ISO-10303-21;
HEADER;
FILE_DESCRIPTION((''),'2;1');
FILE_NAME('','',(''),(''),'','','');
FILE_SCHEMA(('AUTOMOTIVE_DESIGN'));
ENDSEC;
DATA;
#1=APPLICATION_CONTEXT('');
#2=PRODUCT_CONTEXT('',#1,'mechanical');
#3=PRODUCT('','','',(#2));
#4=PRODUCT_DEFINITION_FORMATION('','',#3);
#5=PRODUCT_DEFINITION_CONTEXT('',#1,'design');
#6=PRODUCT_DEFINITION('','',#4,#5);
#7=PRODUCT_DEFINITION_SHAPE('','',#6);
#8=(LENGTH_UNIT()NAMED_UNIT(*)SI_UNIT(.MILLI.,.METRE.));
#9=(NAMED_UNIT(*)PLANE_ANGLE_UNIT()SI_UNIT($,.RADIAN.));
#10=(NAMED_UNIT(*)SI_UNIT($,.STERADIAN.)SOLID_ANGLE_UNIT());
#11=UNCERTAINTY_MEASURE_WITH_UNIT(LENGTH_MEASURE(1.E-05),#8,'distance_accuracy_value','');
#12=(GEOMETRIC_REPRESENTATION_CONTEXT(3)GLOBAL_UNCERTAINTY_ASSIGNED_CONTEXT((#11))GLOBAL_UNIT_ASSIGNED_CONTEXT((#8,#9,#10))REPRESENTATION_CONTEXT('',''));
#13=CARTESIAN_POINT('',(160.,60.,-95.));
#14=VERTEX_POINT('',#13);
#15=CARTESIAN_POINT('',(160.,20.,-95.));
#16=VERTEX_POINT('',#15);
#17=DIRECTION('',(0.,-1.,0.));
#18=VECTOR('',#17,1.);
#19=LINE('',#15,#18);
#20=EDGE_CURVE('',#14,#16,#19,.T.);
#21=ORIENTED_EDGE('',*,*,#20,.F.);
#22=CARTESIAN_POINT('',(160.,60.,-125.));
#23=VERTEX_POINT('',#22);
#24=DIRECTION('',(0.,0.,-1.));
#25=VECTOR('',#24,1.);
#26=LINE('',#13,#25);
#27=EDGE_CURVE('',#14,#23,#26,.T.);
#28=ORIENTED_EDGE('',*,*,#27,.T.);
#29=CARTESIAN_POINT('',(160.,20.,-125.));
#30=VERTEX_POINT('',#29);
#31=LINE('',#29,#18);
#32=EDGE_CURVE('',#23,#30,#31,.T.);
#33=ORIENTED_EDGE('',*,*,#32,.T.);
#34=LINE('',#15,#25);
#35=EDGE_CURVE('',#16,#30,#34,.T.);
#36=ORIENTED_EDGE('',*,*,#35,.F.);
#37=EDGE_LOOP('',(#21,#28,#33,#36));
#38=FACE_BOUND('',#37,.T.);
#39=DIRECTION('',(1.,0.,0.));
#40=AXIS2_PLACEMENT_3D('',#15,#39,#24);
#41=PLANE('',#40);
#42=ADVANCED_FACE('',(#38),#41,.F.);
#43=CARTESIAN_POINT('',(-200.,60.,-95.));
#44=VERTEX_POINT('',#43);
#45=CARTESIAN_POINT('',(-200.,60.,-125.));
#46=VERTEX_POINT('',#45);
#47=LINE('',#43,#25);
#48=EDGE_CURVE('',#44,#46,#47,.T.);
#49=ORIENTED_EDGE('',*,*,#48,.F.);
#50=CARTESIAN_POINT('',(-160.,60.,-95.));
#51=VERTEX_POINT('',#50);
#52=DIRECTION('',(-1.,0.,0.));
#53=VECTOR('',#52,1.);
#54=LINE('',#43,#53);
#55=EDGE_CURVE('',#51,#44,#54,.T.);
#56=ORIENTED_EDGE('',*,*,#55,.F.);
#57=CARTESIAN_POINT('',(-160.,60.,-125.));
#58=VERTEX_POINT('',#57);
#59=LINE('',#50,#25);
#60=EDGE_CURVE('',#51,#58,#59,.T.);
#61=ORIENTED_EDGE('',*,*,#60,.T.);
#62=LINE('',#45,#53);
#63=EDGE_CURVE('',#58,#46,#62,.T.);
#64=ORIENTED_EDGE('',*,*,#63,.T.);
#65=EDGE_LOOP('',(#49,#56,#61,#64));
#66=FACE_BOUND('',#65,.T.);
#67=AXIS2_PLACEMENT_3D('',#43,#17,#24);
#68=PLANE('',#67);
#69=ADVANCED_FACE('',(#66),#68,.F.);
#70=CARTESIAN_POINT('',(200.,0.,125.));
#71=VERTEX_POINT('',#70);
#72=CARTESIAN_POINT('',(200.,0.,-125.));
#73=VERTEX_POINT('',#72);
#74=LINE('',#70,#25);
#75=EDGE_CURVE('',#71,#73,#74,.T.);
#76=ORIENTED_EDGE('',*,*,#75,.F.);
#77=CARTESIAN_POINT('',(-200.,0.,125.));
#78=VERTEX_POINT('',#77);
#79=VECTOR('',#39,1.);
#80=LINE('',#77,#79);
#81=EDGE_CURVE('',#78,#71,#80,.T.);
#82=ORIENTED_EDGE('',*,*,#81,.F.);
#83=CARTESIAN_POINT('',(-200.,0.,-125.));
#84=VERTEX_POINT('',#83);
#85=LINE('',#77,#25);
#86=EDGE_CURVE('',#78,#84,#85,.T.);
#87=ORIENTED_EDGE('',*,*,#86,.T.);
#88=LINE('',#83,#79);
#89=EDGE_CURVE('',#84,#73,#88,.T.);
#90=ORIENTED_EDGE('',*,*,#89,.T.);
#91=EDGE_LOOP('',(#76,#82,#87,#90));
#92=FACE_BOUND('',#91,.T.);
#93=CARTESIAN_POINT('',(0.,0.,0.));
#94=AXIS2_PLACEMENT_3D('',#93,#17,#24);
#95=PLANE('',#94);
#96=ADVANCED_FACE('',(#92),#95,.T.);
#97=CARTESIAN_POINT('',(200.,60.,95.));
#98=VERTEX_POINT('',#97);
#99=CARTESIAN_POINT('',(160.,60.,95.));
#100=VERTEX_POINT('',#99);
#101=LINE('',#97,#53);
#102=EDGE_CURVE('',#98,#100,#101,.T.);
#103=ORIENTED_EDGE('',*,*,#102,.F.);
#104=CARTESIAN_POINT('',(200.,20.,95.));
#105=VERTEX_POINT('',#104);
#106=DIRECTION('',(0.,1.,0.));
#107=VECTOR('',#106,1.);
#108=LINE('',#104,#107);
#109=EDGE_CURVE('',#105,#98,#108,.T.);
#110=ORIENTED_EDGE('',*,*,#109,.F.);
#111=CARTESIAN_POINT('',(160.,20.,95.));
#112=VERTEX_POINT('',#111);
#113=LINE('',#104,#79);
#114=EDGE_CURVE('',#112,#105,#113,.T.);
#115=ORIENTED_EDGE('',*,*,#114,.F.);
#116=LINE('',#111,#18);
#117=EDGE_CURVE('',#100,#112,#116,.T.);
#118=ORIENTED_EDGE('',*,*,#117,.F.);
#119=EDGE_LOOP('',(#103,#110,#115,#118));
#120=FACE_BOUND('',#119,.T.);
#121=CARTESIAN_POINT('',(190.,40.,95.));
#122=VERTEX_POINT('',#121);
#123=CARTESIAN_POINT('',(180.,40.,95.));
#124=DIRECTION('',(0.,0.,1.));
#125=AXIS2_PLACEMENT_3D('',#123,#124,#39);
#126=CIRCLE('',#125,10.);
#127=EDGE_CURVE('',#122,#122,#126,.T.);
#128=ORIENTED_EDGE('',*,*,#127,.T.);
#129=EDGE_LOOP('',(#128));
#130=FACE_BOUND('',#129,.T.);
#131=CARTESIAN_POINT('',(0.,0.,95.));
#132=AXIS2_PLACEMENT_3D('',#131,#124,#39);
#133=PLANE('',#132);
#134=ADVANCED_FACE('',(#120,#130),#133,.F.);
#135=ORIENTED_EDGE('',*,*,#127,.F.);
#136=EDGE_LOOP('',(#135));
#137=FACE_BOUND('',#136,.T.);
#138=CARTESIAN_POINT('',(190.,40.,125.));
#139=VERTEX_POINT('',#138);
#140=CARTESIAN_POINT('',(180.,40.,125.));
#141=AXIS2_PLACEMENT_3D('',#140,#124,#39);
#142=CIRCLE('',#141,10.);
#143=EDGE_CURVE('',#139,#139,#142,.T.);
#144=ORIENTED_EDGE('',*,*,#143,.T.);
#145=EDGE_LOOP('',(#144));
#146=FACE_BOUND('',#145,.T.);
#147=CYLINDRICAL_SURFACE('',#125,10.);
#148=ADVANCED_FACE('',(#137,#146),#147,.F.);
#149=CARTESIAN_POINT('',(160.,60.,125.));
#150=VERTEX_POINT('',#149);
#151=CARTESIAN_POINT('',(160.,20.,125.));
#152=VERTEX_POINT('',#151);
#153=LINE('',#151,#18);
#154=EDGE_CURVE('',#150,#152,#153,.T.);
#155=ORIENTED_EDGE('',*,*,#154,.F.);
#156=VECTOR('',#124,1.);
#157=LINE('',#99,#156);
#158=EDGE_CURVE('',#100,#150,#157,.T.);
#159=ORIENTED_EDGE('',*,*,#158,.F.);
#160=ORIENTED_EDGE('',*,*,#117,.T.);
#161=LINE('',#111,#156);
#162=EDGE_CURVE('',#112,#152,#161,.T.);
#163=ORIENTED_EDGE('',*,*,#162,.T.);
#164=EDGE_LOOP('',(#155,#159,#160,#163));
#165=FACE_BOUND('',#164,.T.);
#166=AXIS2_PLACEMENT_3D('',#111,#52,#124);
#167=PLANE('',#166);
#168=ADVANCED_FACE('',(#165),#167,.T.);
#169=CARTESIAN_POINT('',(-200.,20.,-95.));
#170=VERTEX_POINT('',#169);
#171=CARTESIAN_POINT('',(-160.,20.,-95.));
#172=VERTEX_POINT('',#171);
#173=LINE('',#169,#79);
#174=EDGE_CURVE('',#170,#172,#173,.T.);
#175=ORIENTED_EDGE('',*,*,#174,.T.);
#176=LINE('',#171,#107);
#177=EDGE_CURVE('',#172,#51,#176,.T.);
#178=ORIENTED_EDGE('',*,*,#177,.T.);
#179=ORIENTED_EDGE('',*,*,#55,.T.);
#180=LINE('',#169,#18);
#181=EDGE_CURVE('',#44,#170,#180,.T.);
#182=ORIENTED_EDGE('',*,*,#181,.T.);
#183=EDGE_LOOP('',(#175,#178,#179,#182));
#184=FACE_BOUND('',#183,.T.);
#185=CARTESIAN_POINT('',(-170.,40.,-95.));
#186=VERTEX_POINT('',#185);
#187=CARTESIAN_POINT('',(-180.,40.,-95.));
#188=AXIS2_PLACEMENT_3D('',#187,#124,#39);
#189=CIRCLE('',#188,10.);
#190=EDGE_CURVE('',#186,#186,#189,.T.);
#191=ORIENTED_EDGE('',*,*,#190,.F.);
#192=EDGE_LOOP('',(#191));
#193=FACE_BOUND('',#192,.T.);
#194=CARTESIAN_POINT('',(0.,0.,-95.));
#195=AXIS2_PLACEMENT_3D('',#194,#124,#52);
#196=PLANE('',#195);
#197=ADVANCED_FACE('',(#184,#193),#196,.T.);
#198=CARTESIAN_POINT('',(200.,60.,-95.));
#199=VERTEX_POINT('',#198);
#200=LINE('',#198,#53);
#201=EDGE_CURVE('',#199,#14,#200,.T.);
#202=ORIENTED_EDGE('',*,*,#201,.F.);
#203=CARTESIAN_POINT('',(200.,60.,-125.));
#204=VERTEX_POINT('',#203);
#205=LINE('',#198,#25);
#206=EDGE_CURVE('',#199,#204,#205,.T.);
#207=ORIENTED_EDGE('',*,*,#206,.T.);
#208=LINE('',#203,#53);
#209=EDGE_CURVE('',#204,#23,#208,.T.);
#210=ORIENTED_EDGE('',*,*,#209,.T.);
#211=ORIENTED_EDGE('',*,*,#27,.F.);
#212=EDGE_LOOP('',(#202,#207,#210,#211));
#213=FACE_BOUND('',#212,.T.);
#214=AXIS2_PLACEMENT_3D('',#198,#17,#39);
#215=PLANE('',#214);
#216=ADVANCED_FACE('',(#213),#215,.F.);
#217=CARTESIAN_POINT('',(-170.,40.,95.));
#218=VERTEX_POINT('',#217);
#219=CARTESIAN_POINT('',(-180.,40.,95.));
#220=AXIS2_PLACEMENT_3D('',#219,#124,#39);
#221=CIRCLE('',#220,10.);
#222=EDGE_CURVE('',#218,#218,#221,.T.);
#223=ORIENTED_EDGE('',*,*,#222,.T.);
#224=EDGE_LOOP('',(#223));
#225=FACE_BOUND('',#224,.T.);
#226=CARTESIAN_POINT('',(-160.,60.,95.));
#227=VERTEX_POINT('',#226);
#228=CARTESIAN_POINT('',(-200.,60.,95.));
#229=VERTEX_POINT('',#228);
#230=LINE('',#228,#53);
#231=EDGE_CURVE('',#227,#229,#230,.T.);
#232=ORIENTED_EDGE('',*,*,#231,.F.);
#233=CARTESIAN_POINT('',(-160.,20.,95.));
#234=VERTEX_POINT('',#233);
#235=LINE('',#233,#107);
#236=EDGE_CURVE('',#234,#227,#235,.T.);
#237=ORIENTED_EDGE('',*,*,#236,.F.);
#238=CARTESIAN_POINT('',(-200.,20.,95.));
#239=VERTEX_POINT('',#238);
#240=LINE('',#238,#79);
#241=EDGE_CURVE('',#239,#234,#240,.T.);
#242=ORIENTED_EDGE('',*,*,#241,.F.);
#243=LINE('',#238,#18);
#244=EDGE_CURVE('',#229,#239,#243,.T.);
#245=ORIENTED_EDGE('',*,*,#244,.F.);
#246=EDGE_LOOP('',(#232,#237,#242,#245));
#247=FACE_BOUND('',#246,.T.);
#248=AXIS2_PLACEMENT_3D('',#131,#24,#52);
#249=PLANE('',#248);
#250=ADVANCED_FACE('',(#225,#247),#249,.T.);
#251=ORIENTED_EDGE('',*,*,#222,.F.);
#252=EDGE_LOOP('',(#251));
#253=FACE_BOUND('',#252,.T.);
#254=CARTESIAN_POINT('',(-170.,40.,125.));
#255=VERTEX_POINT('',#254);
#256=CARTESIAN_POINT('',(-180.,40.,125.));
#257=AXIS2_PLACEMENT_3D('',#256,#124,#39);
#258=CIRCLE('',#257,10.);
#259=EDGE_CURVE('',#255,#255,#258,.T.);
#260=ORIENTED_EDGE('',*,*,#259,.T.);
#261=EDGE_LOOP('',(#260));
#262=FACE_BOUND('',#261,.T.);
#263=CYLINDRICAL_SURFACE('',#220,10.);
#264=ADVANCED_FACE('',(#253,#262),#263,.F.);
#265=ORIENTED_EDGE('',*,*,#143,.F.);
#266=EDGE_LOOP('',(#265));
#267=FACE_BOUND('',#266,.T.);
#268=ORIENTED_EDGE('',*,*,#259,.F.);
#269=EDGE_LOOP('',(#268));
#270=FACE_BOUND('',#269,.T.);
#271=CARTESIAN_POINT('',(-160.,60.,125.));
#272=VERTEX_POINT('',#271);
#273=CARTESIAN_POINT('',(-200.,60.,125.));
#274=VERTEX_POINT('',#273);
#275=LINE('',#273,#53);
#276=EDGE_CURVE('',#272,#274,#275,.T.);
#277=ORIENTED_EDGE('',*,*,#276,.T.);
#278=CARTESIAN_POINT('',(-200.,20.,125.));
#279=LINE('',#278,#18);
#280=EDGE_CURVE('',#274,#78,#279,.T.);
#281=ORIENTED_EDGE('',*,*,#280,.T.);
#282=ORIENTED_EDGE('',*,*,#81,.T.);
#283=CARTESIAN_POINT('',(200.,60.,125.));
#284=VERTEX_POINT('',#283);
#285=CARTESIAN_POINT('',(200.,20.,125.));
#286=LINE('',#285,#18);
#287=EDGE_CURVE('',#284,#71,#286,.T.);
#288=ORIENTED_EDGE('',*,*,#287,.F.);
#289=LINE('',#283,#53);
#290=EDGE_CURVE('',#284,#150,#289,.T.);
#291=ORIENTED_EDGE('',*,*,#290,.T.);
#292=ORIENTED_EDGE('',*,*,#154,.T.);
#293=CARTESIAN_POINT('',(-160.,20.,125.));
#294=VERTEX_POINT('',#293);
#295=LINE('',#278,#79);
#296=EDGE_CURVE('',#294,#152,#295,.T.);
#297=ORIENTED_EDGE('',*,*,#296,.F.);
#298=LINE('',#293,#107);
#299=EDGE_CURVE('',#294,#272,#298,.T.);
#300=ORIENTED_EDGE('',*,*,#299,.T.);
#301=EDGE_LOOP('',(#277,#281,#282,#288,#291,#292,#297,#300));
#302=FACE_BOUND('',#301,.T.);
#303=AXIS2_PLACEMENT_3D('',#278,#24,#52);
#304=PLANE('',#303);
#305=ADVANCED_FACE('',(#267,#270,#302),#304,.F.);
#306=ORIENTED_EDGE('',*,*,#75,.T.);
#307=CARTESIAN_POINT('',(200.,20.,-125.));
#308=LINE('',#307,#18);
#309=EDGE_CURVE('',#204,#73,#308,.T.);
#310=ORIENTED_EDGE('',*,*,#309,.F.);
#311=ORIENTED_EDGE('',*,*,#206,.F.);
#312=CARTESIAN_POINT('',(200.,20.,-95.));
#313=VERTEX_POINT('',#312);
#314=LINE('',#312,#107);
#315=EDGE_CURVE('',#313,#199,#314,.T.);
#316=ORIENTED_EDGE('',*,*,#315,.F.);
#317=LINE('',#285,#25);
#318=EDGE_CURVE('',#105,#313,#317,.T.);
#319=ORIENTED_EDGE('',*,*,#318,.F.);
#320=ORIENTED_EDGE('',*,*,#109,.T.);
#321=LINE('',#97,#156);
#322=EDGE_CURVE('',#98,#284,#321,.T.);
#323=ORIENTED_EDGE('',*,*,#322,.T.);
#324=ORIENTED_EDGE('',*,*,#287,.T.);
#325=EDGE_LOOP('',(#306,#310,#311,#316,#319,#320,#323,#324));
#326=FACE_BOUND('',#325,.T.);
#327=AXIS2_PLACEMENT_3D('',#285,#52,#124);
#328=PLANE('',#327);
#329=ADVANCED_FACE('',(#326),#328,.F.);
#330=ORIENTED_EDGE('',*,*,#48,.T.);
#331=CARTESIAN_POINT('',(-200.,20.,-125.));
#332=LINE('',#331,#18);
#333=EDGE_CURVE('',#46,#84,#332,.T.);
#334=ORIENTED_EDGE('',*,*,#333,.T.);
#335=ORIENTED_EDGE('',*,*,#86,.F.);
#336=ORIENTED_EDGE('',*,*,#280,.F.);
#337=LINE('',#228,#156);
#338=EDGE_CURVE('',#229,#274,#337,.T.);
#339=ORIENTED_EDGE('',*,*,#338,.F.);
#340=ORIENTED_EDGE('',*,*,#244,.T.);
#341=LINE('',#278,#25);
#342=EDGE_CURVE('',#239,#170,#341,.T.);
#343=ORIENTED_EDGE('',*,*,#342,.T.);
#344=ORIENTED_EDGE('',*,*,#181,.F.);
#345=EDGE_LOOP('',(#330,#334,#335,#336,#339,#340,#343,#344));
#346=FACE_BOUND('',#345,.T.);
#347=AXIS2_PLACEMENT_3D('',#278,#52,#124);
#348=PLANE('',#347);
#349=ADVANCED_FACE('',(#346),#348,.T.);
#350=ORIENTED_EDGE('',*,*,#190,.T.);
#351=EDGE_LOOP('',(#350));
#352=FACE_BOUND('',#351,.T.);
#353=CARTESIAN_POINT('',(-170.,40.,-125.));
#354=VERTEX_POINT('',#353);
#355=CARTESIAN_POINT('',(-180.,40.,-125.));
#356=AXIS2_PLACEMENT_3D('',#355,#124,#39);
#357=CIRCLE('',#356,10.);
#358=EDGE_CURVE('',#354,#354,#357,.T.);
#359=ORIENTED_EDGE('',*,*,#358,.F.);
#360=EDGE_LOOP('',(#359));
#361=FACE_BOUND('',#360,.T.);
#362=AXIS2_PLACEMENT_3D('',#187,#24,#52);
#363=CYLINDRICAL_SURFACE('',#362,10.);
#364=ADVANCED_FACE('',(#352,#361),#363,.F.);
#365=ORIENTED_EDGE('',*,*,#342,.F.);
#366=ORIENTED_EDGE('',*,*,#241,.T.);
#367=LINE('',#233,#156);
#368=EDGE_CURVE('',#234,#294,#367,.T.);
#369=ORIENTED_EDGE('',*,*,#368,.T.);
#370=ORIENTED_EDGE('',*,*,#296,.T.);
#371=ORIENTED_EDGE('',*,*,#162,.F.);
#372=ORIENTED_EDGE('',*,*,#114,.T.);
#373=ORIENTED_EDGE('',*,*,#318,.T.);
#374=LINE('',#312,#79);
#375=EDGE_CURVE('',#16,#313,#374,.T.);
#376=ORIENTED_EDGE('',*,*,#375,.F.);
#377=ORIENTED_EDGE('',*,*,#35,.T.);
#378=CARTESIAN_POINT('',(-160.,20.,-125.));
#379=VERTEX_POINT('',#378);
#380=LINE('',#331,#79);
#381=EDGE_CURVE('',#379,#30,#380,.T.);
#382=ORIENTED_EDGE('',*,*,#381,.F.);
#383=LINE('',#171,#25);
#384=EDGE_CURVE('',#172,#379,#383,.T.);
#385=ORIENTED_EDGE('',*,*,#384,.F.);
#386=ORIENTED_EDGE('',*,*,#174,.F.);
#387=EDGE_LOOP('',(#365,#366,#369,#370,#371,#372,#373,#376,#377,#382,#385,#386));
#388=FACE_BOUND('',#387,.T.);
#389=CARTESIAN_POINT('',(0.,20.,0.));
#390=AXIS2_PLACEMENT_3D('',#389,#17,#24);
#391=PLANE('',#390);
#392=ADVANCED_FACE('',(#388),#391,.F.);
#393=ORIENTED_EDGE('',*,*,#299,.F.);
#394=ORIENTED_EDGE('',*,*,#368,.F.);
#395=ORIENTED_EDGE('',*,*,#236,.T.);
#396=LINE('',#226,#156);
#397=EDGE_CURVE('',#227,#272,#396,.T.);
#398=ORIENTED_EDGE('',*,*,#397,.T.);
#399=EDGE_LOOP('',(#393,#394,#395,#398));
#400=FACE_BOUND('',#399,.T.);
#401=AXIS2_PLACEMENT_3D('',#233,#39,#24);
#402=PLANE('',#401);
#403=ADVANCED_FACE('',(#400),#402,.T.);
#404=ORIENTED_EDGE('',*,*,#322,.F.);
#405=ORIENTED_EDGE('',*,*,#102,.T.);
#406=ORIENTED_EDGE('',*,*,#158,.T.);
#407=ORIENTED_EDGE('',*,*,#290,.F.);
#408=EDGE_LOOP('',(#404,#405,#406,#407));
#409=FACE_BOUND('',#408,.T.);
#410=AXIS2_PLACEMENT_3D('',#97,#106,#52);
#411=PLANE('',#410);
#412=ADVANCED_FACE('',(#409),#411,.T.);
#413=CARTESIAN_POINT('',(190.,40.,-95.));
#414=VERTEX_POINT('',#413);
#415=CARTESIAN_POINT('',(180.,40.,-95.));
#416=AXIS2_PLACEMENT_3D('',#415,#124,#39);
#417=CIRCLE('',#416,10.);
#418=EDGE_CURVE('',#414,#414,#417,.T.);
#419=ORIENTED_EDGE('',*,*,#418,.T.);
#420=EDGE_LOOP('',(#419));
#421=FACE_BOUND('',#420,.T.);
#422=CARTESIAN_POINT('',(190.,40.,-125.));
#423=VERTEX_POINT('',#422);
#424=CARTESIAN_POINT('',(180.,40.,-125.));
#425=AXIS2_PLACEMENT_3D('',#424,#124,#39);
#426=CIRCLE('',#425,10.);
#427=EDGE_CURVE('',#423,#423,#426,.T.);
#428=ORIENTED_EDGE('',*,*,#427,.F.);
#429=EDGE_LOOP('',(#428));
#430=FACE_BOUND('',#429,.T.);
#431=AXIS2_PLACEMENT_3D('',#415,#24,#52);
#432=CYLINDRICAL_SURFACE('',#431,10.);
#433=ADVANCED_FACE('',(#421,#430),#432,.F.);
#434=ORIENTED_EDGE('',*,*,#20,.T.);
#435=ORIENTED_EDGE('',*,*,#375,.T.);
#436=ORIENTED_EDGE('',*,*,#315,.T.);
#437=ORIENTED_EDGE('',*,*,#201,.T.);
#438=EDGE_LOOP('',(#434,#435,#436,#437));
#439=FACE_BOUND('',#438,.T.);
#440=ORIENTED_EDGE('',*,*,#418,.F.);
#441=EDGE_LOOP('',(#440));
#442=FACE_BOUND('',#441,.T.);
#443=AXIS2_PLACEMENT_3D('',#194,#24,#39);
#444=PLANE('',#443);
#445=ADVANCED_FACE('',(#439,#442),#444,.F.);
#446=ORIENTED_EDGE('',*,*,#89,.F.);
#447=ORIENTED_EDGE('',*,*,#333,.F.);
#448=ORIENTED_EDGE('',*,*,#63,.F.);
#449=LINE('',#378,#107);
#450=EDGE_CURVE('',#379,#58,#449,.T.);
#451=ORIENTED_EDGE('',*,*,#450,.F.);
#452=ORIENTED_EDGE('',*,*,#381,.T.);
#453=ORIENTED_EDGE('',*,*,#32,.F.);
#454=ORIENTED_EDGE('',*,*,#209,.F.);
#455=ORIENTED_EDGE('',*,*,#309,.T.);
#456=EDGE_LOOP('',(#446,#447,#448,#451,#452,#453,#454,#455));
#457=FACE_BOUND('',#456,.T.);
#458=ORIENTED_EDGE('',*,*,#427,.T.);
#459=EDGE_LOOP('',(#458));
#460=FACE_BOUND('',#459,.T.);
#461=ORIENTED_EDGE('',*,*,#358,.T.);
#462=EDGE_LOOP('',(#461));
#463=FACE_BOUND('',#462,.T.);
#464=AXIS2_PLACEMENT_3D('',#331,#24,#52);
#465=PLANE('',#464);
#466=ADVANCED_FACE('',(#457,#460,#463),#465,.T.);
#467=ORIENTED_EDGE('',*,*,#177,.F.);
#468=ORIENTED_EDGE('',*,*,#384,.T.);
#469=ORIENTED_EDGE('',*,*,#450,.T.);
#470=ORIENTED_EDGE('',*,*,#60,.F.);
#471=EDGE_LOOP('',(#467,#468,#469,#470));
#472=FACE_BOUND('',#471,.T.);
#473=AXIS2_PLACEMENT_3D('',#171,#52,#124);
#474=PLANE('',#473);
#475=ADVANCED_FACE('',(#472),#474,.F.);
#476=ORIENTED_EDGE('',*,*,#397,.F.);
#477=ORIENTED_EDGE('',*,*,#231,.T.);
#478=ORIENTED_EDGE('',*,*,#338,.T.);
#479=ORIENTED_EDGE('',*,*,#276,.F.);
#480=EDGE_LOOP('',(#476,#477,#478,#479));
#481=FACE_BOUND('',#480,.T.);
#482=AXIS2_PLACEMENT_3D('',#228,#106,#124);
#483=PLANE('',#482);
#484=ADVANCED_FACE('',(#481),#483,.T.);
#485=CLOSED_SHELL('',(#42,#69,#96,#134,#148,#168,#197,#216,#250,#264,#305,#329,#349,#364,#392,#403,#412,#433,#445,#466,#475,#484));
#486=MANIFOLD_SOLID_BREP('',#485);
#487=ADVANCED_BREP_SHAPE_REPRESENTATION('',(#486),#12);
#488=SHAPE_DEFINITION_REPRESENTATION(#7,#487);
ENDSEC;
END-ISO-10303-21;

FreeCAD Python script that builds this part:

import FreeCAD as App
import Part
import Sketcher

V = App.Vector
Q = App.Units.Quantity


def add_polygon(sketch, points):
    """Adds a closed chain of lines whose ends are joined by coincident constraints."""
    first, n = sketch.GeometryCount, len(points)
    for a, b in zip(points, points[1:] + points[:1]):
        sketch.addGeometry(Part.LineSegment(App.Vector(*a, 0), App.Vector(*b, 0)), False)
    for i in range(n):
        sketch.addConstraint(Sketcher.Constraint("Coincident", first + i, 2, first + (i + 1) % n, 1))

doc = App.newDocument("Part")
body = doc.addObject("PartDesign::Body", "Body")

# Sketch on XZ plane
sketch1 = doc.addObject("Sketcher::SketchObject", "Sketch")
body.addObject(sketch1)
sketch1.AttachmentSupport = (doc.XZ_Plane, [""])
sketch1.MapMode = "FlatFace"
add_polygon(sketch1, [(-200, -125), (-200, 125), (200, 125), (200, -125)])  # lines 0-3
sketch1.addConstraint([
    Sketcher.Constraint("Vertical", 0),
    Sketcher.Constraint("Horizontal", 1),
    Sketcher.Constraint("Vertical", 2),
    Sketcher.Constraint("Horizontal", 3),
    Sketcher.Constraint("Symmetric", 0, 2, 2, 2, -1, 1),
    Sketcher.Constraint("DistanceX", 1, 1, 1, 2, Q("400 mm")),
    Sketcher.Constraint("DistanceY", 0, 1, 0, 2, Q("250 mm")),
])
pad1 = doc.addObject("PartDesign::Pad", "Pad")
body.addObject(pad1)
pad1.Profile = sketch1
pad1.Length = 20
pad1.Reversed = True

# Sketch on XY plane
sketch2 = doc.addObject("Sketcher::SketchObject", "Sketch001")
body.addObject(sketch2)
sketch2.AttachmentSupport = (doc.XY_Plane, [""])
sketch2.MapMode = "FlatFace"
sketch2.AttachmentOffset = App.Placement(V(0, 0, 125), App.Rotation())
add_polygon(sketch2, [(-200, 60), (-200, 20), (-160, 20), (-160, 60)])  # lines 0-3
sketch2.addGeometry(Part.Circle(V(-180, 40, 0), V(0, 0, 1), 10), False)  # 4
add_polygon(sketch2, [(160, 60), (160, 20), (200, 20), (200, 60)])  # lines 5-8
sketch2.addGeometry(Part.Circle(V(180, 40, 0), V(0, 0, 1), 10), False)  # 9
sketch2.addConstraint([
    Sketcher.Constraint("Vertical", 0),
    Sketcher.Constraint("Horizontal", 1),
    Sketcher.Constraint("Vertical", 2),
    Sketcher.Constraint("Horizontal", 3),
    Sketcher.Constraint("Vertical", 5),
    Sketcher.Constraint("Horizontal", 6),
    Sketcher.Constraint("Vertical", 7),
    Sketcher.Constraint("Horizontal", 8),
    Sketcher.Constraint("Equal", 4, 9),
    Sketcher.Constraint("Symmetric", 4, 3, 9, 3, -2),
    Sketcher.Constraint("Symmetric", 1, 2, 5, 2, -2),
    Sketcher.Constraint("Symmetric", 3, 2, 7, 2, -2),
    Sketcher.Constraint("Equal", 8, 0),
    Sketcher.Constraint("Diameter", 4, Q("20 mm")),
    Sketcher.Constraint("DistanceX", 1, 1, 1, 2, Q("40 mm")),
    Sketcher.Constraint("DistanceX", 4, 3, -1, 1, Q("180 mm")),
    Sketcher.Constraint("DistanceY", -1, 1, 4, 3, Q("40 mm")),
    Sketcher.Constraint("DistanceX", 0, 2, -1, 1, Q("200 mm")),
    Sketcher.Constraint("DistanceY", -1, 1, 0, 2, Q("20 mm")),
])
pad2 = doc.addObject("PartDesign::Pad", "Pad001")
body.addObject(pad2)
pad2.Profile = sketch2
pad2.Length = 30
pad2.Reversed = True
doc.recompute()

mirrored = doc.addObject("PartDesign::Mirrored", "Mirrored")
body.addObject(mirrored)
mirrored.Originals = [pad2]
mirrored.MirrorPlane = (doc.XY_Plane, [""])
body.Tip = mirrored

doc.recompute()
